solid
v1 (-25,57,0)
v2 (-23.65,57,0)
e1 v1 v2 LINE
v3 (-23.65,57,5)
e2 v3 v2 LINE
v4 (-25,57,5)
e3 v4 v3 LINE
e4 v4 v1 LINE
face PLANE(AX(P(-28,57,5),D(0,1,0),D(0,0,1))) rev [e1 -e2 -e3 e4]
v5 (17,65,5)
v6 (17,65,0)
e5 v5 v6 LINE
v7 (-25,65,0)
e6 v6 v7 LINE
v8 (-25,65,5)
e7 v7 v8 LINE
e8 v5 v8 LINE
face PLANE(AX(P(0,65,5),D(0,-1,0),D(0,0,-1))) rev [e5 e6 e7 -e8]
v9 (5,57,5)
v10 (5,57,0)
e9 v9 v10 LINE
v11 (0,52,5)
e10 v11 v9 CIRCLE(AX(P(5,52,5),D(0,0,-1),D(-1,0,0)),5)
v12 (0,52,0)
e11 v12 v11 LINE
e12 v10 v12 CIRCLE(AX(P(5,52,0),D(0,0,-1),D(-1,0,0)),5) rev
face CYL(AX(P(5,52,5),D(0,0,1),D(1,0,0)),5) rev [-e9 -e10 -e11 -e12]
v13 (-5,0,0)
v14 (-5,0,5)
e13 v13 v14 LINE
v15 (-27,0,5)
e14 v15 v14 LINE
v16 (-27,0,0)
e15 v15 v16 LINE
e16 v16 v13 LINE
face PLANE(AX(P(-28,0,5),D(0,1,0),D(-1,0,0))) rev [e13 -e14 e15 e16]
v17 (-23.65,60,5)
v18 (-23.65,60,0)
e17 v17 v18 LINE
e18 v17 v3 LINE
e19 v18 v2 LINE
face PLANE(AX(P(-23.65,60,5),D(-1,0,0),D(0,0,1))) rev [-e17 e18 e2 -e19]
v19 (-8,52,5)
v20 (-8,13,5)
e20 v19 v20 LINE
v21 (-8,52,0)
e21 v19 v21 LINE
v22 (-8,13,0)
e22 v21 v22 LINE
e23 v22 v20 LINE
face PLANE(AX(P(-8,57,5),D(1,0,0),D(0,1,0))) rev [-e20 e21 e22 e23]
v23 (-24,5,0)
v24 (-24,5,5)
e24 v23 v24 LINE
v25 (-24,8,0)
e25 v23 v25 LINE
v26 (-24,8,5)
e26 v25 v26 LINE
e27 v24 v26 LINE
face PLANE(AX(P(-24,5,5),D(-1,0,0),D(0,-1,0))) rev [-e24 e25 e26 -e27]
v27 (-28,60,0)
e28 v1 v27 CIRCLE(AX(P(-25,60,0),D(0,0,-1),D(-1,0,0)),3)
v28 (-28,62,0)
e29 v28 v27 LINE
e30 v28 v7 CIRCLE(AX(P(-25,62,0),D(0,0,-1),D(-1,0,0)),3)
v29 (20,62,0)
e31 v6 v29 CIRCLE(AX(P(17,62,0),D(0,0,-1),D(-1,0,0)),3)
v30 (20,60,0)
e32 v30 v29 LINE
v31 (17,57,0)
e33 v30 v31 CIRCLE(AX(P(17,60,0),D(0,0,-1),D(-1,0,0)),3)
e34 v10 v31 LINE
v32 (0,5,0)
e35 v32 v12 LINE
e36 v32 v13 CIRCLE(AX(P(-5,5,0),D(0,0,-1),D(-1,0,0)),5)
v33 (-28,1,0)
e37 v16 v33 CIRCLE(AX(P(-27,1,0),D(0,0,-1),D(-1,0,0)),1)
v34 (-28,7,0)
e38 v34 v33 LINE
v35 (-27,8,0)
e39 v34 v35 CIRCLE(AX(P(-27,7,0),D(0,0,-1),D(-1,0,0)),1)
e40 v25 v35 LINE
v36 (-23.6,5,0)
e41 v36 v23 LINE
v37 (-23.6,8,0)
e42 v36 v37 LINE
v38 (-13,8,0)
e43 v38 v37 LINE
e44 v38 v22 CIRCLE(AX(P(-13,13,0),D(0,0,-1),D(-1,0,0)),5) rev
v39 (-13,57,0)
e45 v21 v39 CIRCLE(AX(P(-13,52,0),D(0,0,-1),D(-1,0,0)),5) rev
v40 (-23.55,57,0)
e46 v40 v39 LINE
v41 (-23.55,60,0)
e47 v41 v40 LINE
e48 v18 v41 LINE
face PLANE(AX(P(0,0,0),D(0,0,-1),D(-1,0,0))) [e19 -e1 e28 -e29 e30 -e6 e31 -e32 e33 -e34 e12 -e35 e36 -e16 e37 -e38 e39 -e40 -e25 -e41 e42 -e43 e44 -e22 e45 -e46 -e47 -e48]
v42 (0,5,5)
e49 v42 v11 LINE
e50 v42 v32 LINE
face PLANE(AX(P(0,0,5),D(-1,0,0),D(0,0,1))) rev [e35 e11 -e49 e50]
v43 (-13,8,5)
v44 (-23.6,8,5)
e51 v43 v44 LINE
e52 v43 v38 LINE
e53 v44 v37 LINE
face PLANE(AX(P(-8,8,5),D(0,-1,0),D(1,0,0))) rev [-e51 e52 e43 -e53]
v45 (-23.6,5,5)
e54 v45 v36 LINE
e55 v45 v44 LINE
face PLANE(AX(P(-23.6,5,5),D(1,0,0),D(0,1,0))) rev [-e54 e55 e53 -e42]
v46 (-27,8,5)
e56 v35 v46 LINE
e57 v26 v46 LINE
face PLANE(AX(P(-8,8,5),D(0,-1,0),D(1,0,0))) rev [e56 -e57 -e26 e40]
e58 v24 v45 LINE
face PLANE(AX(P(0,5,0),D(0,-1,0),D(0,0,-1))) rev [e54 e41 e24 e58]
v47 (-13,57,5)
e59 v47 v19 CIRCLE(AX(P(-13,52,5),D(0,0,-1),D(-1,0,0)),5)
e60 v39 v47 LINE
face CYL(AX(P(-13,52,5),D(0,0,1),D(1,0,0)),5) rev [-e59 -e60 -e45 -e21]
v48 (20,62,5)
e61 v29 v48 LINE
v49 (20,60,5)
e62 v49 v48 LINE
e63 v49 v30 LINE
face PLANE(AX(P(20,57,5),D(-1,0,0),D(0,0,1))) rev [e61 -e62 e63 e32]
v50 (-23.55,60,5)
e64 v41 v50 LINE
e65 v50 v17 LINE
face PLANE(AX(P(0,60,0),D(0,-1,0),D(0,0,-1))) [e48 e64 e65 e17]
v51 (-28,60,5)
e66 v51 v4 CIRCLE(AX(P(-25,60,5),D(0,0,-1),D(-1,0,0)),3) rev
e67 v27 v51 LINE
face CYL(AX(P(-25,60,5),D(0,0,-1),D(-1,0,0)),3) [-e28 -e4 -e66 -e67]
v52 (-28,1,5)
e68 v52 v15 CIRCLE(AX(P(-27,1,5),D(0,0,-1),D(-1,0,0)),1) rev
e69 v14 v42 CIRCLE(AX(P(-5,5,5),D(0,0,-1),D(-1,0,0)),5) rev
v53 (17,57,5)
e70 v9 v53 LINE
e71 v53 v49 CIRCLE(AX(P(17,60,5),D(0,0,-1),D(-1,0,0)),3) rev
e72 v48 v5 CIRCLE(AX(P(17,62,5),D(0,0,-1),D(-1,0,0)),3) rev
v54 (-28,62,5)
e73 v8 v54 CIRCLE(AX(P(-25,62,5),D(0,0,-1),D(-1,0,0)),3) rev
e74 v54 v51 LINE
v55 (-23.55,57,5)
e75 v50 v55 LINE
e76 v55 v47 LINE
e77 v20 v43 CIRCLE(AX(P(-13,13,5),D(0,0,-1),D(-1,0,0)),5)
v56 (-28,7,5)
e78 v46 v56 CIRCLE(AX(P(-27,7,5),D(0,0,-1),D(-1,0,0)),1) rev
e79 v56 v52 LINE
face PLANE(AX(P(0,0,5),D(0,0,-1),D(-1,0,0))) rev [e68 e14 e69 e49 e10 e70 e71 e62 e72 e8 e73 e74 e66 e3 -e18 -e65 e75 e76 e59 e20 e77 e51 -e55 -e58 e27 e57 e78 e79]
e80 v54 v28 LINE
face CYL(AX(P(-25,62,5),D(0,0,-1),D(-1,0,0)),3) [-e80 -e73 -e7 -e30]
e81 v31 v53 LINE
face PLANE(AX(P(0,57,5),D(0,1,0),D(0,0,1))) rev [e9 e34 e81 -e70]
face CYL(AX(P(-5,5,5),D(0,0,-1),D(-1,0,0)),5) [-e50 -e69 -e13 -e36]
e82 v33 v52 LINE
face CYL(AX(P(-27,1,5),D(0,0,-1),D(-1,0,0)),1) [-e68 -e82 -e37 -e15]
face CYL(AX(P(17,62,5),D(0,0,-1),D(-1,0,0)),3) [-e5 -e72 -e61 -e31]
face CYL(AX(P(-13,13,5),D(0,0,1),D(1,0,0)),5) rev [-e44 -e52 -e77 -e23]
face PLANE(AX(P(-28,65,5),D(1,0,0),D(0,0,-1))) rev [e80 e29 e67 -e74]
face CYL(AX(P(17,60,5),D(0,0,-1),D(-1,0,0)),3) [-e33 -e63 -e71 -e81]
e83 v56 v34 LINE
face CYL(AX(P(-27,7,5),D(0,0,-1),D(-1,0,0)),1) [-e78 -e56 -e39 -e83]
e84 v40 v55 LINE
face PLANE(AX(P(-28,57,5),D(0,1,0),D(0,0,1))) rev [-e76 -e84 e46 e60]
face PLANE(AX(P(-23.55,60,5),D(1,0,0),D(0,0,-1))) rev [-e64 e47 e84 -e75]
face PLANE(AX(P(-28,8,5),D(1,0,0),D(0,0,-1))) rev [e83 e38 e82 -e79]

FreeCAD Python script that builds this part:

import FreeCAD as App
import Part
import Sketcher

V = App.Vector
Q = App.Units.Quantity


def edges_at(feature, points):
    """Names of the edges that pass closest to the given points."""
    edges = feature.Shape.Edges
    near = lambda p: min(range(len(edges)), key=lambda i: edges[i].distToShape(Part.Vertex(*p))[0])
    return sorted({f"Edge{near(p) + 1}" for p in points})


def add_polygon(sketch, points):
    """Adds a closed chain of lines whose ends are joined by coincident constraints."""
    first, n = sketch.GeometryCount, len(points)
    for a, b in zip(points, points[1:] + points[:1]):
        sketch.addGeometry(Part.LineSegment(App.Vector(*a, 0), App.Vector(*b, 0)), False)
    for i in range(n):
        sketch.addConstraint(Sketcher.Constraint("Coincident", first + i, 2, first + (i + 1) % n, 1))

doc = App.newDocument("Part")
body = doc.addObject("PartDesign::Body", "Body")

# Sketch on XY plane
sketch1 = doc.addObject("Sketcher::SketchObject", "Sketch")
body.addObject(sketch1)
sketch1.AttachmentSupport = (doc.XY_Plane, [""])
sketch1.MapMode = "FlatFace"
add_polygon(sketch1, [(-28, 65), (-28, 57), (-8, 57), (-8, 8), (-28, 8), (-28, 0), (0, 0), (0, 57), (20, 57), (20, 65)])  # lines 0-9
sketch1.addConstraint(Sketcher.Constraint("Vertical", 0))
sketch1.addConstraint(Sketcher.Constraint("Horizontal", 1))
sketch1.addConstraint(Sketcher.Constraint("Vertical", 2))
sketch1.addConstraint(Sketcher.Constraint("Horizontal", 3))
sketch1.addConstraint(Sketcher.Constraint("Vertical", 4))
sketch1.addConstraint(Sketcher.Constraint("Horizontal", 5))
sketch1.addConstraint(Sketcher.Constraint("Vertical", 6))
sketch1.addConstraint(Sketcher.Constraint("Horizontal", 7))
sketch1.addConstraint(Sketcher.Constraint("Vertical", 8))
sketch1.addConstraint(Sketcher.Constraint("Horizontal", 9))
sketch1.addConstraint(Sketcher.Constraint("Coincident", 5, 2, -1, 1))
sketch1.addConstraint(Sketcher.Constraint("Horizontal", 1, 2, 6, 2))
sketch1.addConstraint(Sketcher.Constraint("Vertical", 0, 2, 3, 2))
sketch1.addConstraint(Sketcher.Constraint("Equal", 3, 7))
sketch1.addConstraint(Sketcher.Constraint("Equal", 0, 4))
sketch1.addConstraint(Sketcher.Constraint("DistanceX", 1, 1, 1, 2, Q("20 mm")))
sketch1.addConstraint(Sketcher.Constraint("DistanceX", 5, 1, 5, 2, Q("28 mm")))
sketch1.addConstraint(Sketcher.Constraint("DistanceY", 0, 2, 0, 1, Q("8 mm")))
sketch1.addConstraint(Sketcher.Constraint("DistanceY", 2, 2, 2, 1, Q("49 mm")))
pad1 = doc.addObject("PartDesign::Pad", "Pad")
body.addObject(pad1)
pad1.Profile = sketch1
pad1.Length = 5

# Sketch on XZ plane
sketch2 = doc.addObject("Sketcher::SketchObject", "Sketch001")
body.addObject(sketch2)
sketch2.AttachmentSupport = (doc.XZ_Plane, [""])
sketch2.MapMode = "FlatFace"
sketch2.AttachmentOffset = App.Placement(V(0, 0, -8), App.Rotation())
add_polygon(sketch2, [(-24, 0), (-24, 5), (-23.6, 5), (-23.6, 0)])  # lines 0-3
sketch2.addConstraint(Sketcher.Constraint("Vertical", 0))
sketch2.addConstraint(Sketcher.Constraint("Horizontal", 1))
sketch2.addConstraint(Sketcher.Constraint("Vertical", 2))
sketch2.addConstraint(Sketcher.Constraint("Horizontal", 3))
sketch2.addConstraint(Sketcher.Constraint("PointOnObject", 2, 2, -1))
sketch2.addConstraint(Sketcher.Constraint("DistanceY", 0, 1, 0, 2, Q("5 mm")))
sketch2.addConstraint(Sketcher.Constraint("DistanceX", 1, 1, 1, 2, Q("0.4 mm")))
sketch2.addConstraint(Sketcher.Constraint("DistanceX", 0, 2, -1, 1, Q("24 mm")))
pocket1 = doc.addObject("PartDesign::Pocket", "Pocket")
body.addObject(pocket1)
pocket1.Profile = sketch2
pocket1.Length = 3
pocket1.Reversed = True

# Sketch on XZ plane
sketch3 = doc.addObject("Sketcher::SketchObject", "Sketch002")
body.addObject(sketch3)
sketch3.AttachmentSupport = (doc.XZ_Plane, [""])
sketch3.MapMode = "FlatFace"
sketch3.AttachmentOffset = App.Placement(V(0, 0, -57), App.Rotation())
add_polygon(sketch3, [(-23.65, 5), (-23.65, 0), (-23.55, 0), (-23.55, 5)])  # lines 0-3
sketch3.addConstraint(Sketcher.Constraint("Vertical", 0))
sketch3.addConstraint(Sketcher.Constraint("Horizontal", 1))
sketch3.addConstraint(Sketcher.Constraint("Vertical", 2))
sketch3.addConstraint(Sketcher.Constraint("Horizontal", 3))
sketch3.addConstraint(Sketcher.Constraint("PointOnObject", 0, 2, -1))
sketch3.addConstraint(Sketcher.Constraint("DistanceY", 0, 2, 0, 1, Q("5 mm")))
sketch3.addConstraint(Sketcher.Constraint("DistanceX", 1, 1, 1, 2, Q("0.1 mm")))
sketch3.addConstraint(Sketcher.Constraint("DistanceX", 0, 2, -1, 1, Q("23.65 mm")))
pocket2 = doc.addObject("PartDesign::Pocket", "Pocket001")
body.addObject(pocket2)
pocket2.Profile = sketch3
pocket2.Length = 3
doc.recompute()

fillet = doc.addObject("PartDesign::Fillet", "Fillet")
body.addObject(fillet)
fillet.Base = (pocket2, edges_at(pocket2, [
    (0, 0, 2.5),
    (-8, 8, 2.5),
    (-8, 57, 2.5),
    (0, 57, 2.5),
]))
fillet.Radius = 5
doc.recompute()

fillet2 = doc.addObject("PartDesign::Fillet", "Fillet001")
body.addObject(fillet2)
fillet2.Base = (fillet, edges_at(fillet, [
    (-28, 57, 2.5),
    (-28, 65, 2.5),
    (20, 65, 2.5),
    (20, 57, 2.5),
]))
fillet2.Radius = 3
doc.recompute()

fillet3 = doc.addObject("PartDesign::Fillet", "Fillet002")
body.addObject(fillet3)
fillet3.Base = (fillet2, edges_at(fillet2, [(-28, 0, 2.5), (-28, 8, 2.5)]))
fillet3.Radius = 1

doc.recompute()
